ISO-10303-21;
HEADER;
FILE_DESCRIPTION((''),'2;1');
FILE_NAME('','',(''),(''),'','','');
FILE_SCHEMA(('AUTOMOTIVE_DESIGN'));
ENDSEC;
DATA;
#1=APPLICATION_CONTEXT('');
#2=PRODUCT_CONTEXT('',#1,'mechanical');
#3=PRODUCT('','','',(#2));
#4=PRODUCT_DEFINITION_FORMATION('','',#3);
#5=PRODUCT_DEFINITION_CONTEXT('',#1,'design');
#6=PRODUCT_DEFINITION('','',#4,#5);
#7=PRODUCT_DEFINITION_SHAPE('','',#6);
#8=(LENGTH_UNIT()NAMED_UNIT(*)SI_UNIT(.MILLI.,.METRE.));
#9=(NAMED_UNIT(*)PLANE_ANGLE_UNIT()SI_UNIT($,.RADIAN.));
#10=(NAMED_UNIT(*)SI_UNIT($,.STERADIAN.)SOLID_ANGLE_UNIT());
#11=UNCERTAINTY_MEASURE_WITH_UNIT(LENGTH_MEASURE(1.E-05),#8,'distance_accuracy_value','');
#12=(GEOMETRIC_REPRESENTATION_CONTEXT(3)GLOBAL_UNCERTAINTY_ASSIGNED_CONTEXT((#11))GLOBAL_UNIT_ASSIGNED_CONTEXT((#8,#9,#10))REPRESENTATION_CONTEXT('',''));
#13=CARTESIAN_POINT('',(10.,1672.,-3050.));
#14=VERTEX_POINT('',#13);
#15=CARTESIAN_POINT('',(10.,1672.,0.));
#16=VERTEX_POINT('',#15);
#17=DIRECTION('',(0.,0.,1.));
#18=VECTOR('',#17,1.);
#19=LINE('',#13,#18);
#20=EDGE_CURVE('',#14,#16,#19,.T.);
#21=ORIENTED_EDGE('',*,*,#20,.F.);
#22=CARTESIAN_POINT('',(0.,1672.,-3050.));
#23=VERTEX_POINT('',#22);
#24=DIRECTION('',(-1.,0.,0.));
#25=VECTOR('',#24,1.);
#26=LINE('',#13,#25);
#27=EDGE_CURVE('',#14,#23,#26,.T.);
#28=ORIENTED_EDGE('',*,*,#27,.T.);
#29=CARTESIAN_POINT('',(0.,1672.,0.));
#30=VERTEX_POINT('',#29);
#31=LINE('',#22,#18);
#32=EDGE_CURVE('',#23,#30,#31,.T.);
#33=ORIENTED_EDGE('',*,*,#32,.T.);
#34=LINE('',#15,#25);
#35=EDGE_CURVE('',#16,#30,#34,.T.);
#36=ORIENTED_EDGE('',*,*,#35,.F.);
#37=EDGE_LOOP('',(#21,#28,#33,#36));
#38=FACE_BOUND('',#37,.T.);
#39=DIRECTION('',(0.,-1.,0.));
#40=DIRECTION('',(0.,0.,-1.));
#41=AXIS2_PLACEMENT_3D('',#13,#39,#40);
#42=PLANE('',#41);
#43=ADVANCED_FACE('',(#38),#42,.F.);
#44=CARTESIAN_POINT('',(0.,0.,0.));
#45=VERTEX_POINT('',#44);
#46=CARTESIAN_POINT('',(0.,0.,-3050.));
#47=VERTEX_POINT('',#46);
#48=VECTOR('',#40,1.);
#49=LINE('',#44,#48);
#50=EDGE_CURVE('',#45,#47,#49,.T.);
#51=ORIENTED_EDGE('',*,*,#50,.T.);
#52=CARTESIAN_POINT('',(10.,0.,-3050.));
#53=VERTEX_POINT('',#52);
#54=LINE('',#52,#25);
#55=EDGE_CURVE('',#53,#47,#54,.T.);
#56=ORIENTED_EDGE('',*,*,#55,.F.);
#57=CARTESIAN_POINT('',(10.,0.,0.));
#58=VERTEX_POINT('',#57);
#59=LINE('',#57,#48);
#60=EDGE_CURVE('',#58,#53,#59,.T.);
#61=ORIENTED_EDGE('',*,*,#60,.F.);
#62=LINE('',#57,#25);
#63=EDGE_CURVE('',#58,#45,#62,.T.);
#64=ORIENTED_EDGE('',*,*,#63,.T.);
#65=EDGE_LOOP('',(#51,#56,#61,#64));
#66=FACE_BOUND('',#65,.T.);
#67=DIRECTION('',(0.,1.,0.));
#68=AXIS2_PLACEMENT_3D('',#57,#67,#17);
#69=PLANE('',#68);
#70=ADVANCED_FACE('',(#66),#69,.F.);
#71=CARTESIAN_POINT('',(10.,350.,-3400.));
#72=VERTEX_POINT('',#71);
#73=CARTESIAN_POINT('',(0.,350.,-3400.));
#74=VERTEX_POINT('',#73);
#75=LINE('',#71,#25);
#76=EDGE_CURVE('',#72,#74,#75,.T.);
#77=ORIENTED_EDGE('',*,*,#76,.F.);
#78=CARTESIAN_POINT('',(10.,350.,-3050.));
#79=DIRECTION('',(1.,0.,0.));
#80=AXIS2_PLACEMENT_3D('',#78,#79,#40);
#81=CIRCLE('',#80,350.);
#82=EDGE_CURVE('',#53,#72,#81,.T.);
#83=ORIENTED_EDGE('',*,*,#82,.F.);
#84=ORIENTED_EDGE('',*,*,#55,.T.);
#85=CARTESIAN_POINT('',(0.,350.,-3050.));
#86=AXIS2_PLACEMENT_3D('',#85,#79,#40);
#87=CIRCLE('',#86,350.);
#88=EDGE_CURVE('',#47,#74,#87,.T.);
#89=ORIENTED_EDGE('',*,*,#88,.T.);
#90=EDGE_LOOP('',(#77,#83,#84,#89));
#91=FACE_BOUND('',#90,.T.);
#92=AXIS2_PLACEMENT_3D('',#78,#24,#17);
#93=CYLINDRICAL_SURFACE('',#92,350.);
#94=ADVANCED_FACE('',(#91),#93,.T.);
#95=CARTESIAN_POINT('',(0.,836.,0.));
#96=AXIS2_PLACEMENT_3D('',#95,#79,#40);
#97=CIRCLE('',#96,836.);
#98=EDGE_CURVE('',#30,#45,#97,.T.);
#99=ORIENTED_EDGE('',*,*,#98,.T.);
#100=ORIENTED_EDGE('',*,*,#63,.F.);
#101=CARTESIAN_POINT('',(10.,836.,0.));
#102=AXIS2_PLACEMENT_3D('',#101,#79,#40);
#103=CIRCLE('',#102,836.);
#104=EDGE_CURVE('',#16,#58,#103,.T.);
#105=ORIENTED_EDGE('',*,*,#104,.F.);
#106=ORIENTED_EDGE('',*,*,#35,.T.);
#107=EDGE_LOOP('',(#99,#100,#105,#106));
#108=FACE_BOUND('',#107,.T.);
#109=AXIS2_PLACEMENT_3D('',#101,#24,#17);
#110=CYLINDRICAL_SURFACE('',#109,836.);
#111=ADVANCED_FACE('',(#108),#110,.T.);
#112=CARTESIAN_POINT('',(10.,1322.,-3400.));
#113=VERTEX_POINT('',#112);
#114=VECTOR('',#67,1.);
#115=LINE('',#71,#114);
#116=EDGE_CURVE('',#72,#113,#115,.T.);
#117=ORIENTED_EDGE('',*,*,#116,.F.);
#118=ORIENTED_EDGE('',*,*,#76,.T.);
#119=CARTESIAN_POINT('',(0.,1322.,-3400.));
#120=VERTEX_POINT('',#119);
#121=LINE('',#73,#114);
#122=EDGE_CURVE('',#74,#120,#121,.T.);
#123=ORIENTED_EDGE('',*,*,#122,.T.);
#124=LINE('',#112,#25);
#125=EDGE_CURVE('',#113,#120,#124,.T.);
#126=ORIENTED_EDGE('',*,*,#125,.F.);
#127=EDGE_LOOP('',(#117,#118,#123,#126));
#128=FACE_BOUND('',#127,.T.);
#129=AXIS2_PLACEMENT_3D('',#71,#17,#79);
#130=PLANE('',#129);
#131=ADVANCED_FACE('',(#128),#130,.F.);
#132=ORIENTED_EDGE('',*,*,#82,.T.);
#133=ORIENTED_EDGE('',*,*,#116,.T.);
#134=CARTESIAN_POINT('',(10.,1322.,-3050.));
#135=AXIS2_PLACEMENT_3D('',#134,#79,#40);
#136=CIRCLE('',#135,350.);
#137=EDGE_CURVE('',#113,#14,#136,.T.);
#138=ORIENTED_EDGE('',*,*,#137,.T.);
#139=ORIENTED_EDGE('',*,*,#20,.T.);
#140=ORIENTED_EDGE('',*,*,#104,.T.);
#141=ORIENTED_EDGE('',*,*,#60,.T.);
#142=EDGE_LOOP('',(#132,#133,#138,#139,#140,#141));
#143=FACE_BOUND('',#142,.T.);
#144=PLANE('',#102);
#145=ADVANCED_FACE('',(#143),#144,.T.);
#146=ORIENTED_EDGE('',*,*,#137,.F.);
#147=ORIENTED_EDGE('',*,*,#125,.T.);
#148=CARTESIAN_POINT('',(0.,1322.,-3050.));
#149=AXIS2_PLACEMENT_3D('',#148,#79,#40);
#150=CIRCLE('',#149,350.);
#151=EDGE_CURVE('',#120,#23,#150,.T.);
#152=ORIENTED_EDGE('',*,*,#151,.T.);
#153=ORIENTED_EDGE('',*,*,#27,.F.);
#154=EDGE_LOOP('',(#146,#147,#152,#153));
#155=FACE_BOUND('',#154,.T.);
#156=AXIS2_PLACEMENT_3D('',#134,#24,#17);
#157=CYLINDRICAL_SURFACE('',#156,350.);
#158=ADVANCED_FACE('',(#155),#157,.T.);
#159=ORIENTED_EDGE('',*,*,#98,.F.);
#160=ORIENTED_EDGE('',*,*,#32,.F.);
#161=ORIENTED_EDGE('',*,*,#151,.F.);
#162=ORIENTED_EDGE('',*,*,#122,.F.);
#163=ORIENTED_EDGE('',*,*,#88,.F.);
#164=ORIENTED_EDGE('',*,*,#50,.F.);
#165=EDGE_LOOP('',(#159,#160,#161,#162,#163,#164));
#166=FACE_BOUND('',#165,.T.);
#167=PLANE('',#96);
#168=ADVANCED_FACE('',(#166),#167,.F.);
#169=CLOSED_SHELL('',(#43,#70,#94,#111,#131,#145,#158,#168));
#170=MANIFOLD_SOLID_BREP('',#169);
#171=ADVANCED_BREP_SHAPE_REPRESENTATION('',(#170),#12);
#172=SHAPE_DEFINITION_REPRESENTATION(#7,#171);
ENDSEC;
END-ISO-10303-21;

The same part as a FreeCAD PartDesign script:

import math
import FreeCAD as App
import Part
import Sketcher

V = App.Vector

doc = App.newDocument("Part")
body = doc.addObject("PartDesign::Body", "Body")

# Sketch on YZ plane
sketch1 = doc.addObject("Sketcher::SketchObject", "Sketch")
body.addObject(sketch1)
sketch1.AttachmentSupport = (doc.YZ_Plane, [""])
sketch1.MapMode = "FlatFace"
sketch1.addGeometry([
    Part.LineSegment(V(0, 0, 0), V(0, -3050, 0)),  # 0
    Part.ArcOfCircle(Part.Circle(V(350, -3050, 0), V(0, 0, 1), 350), math.radians(-180), math.radians(-90)),  # 1
    Part.LineSegment(V(350, -3400, 0), V(1322, -3400, 0)),  # 2
    Part.ArcOfCircle(Part.Circle(V(1322, -3050, 0), V(0, 0, 1), 350), math.radians(-90), math.radians(0)),  # 3
    Part.LineSegment(V(1672, -3050, 0), V(1672, 0, 0)),  # 4
    Part.ArcOfCircle(Part.Circle(V(836, 0, 0), V(0, 0, 1), 836), math.radians(0), math.radians(180)),  # 5
], False)
sketch1.addConstraint([
    Sketcher.Constraint("Tangent", 0, 2, 1, 1),
    Sketcher.Constraint("Tangent", 1, 2, 2, 1),
    Sketcher.Constraint("Tangent", 2, 2, 3, 1),
    Sketcher.Constraint("Tangent", 3, 2, 4, 1),
    Sketcher.Constraint("Coincident", 4, 2, 5, 1),
    Sketcher.Constraint("Coincident", 5, 2, 0, 1),
    Sketcher.Constraint("Vertical", 0),
    Sketcher.Constraint("Horizontal", 2),
    Sketcher.Constraint("Vertical", 4),
    Sketcher.Constraint("Equal", 1, 3),
    Sketcher.Constraint("PointOnObject", 5, 3, -1),
    Sketcher.Constraint("PointOnObject", 0, 2, -2),
    Sketcher.Constraint("PointOnObject", 4, 2, -1),
    Sketcher.Constraint("Equal", 0, 4),
    Sketcher.Constraint("Radius", 1, 350.0),
    Sketcher.Constraint("Radius", 5, 836.0),
    Sketcher.Constraint("DistanceY", 0, 2, 0, 1, 3050.0),
])
pad1 = doc.addObject("PartDesign::Pad", "Pad")
body.addObject(pad1)
pad1.Profile = sketch1
pad1.Length = 10

doc.recompute()
